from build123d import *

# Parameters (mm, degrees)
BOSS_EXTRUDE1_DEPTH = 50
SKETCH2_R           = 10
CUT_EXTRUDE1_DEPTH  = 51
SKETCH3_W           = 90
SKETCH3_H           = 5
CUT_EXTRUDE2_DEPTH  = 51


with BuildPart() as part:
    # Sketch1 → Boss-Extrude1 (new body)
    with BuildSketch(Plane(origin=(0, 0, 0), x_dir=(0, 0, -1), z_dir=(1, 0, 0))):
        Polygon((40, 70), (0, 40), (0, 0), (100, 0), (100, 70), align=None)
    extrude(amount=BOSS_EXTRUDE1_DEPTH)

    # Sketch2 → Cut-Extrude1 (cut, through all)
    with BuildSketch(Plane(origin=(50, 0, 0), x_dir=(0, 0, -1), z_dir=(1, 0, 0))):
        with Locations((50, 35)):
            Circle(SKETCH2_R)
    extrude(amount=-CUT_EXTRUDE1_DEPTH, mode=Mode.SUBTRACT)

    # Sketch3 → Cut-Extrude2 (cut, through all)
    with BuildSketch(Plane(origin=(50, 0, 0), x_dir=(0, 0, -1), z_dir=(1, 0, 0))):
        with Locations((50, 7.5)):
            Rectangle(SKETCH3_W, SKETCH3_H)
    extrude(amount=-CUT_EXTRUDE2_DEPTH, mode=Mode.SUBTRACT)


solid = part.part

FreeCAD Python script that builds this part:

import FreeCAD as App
import Part
import Sketcher
from FreeCAD import Vector
Q = App.Units.Quantity


def add_polygon(sketch, points):
    """Adds a closed chain of lines whose ends are joined by coincident constraints."""
    first, n = sketch.GeometryCount, len(points)
    for a, b in zip(points, points[1:] + points[:1]):
        sketch.addGeometry(Part.LineSegment(App.Vector(*a, 0), App.Vector(*b, 0)), False)
    for i in range(n):
        sketch.addConstraint(Sketcher.Constraint("Coincident", first + i, 2, first + (i + 1) % n, 1))

doc = App.newDocument("Part")
body = doc.addObject("PartDesign::Body", "Body")

sketch1 = body.newObject("Sketcher::SketchObject", "Sketch")
sketch1.AttachmentSupport = (doc.getObject("YZ_Plane"), [""])
sketch1.MapMode = "FlatFace"
add_polygon(sketch1, [(70, -40), (40, 0), (0, 0), (0, -100), (70, -100)])
sketch1.addConstraint(Sketcher.Constraint("Horizontal", 1))
sketch1.addConstraint(Sketcher.Constraint("Vertical", 2))
sketch1.addConstraint(Sketcher.Constraint("Horizontal", 3))
sketch1.addConstraint(Sketcher.Constraint("Vertical", 4))
sketch1.addConstraint(Sketcher.Constraint("Coincident", 1, 2, -1, 1))
sketch1.addConstraint(Sketcher.Constraint("DistanceX", 1, 2, 1, 1, Q("40 mm")))
sketch1.addConstraint(Sketcher.Constraint("DistanceX", 3, 1, 3, 2, Q("70 mm")))
sketch1.addConstraint(Sketcher.Constraint("DistanceY", 2, 2, 2, 1, Q("100 mm")))
sketch1.addConstraint(Sketcher.Constraint("DistanceY", 4, 1, 4, 2, Q("60 mm")))
pad1 = body.newObject("PartDesign::Pad", "Pad")
pad1.Profile = sketch1
pad1.Length = 50

sketch2 = body.newObject("Sketcher::SketchObject", "Sketch001")
sketch2.AttachmentSupport = (doc.getObject("YZ_Plane"), [""])
sketch2.MapMode = "FlatFace"
sketch2.AttachmentOffset = App.Placement(Vector(0, 0, 50), App.Rotation())
sketch2.addGeometry(Part.Circle(Vector(35, -50, 0), Vector(0, 0, 1), 10), False)
sketch2.addConstraint(Sketcher.Constraint("Diameter", 0, Q("20 mm")))
sketch2.addConstraint(Sketcher.Constraint("DistanceX", -1, 1, 0, 3, Q("35 mm")))
sketch2.addConstraint(Sketcher.Constraint("DistanceY", 0, 3, -1, 1, Q("50 mm")))
pocket1 = body.newObject("PartDesign::Pocket", "Pocket")
pocket1.Profile = sketch2
pocket1.Type = "ThroughAll"

sketch3 = body.newObject("Sketcher::SketchObject", "Sketch002")
sketch3.AttachmentSupport = (doc.getObject("YZ_Plane"), [""])
sketch3.MapMode = "FlatFace"
sketch3.AttachmentOffset = App.Placement(Vector(0, 0, 50), App.Rotation())
add_polygon(sketch3, [(10, -5), (5, -5), (5, -95), (10, -95)])
sketch3.addConstraint(Sketcher.Constraint("Horizontal", 0))
sketch3.addConstraint(Sketcher.Constraint("Vertical", 1))
sketch3.addConstraint(Sketcher.Constraint("Horizontal", 2))
sketch3.addConstraint(Sketcher.Constraint("Vertical", 3))
sketch3.addConstraint(Sketcher.Constraint("DistanceX", 0, 2, 0, 1, Q("5 mm")))
sketch3.addConstraint(Sketcher.Constraint("DistanceY", 1, 2, 1, 1, Q("90 mm")))
sketch3.addConstraint(Sketcher.Constraint("DistanceX", -1, 1, 0, 2, Q("5 mm")))
sketch3.addConstraint(Sketcher.Constraint("DistanceY", 0, 2, -1, 1, Q("5 mm")))
pocket2 = body.newObject("PartDesign::Pocket", "Pocket001")
pocket2.Profile = sketch3
pocket2.Type = "ThroughAll"

doc.recompute()
